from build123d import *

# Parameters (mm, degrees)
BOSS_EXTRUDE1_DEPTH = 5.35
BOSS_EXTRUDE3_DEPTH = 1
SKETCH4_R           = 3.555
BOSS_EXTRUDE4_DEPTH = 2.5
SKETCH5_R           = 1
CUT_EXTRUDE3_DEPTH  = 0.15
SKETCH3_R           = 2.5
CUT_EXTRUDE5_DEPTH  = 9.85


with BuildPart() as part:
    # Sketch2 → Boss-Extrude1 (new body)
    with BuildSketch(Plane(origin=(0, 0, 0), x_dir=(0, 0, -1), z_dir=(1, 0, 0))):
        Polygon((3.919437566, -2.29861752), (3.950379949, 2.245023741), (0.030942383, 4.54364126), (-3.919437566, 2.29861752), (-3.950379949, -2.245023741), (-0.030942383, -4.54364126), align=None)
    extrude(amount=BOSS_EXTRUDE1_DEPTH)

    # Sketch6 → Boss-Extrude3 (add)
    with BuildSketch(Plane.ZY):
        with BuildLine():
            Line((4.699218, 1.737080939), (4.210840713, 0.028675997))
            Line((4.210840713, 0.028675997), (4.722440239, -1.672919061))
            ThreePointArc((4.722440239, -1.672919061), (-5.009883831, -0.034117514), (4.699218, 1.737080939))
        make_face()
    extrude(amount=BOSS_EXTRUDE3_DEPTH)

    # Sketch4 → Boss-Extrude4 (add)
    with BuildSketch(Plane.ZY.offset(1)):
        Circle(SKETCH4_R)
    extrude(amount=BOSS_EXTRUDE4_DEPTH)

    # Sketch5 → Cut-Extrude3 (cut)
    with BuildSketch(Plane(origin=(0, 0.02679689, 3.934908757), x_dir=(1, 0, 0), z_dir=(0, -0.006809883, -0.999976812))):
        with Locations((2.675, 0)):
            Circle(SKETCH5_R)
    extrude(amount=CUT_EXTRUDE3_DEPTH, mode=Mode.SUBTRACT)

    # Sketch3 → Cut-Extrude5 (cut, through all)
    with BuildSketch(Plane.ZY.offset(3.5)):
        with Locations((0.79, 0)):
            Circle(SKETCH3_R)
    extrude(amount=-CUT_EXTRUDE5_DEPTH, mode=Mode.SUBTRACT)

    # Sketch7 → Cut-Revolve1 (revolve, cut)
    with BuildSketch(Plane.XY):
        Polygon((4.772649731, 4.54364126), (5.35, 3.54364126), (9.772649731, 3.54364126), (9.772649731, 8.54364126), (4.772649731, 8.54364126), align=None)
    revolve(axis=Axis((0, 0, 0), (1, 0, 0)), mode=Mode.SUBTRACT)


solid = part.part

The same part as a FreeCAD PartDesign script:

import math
import FreeCAD as App
import Part
import Sketcher
Q = App.Units.Quantity

doc = App.newDocument("Part")
body = doc.addObject("PartDesign::Body", "Body")

# Sketch on YZ plane
sketch1 = doc.addObject("Sketcher::SketchObject", "Sketch")
body.addObject(sketch1)
sketch1.AttachmentSupport = (doc.YZ_Plane, [""])
sketch1.MapMode = "FlatFace"
sketch1.addGeometry([
    Part.LineSegment(App.Vector(-2.3, -3.9, 0), App.Vector(2.2, -4, 0)),  # 0
    Part.LineSegment(App.Vector(2.2, -4, 0), App.Vector(4.5, 0, 0)),  # 1
    Part.LineSegment(App.Vector(4.5, 0, 0), App.Vector(2.3, 3.9, 0)),  # 2
    Part.LineSegment(App.Vector(2.3, 3.9, 0), App.Vector(-2.2, 4, 0)),  # 3
    Part.LineSegment(App.Vector(-2.2, 4, 0), App.Vector(-4.5, 0, 0)),  # 4
    Part.LineSegment(App.Vector(-4.5, 0, 0), App.Vector(-2.3, -3.9, 0)),  # 5
], False)
sketch1.addConstraint([
    Sketcher.Constraint("Coincident", 0, 2, 1, 1),
    Sketcher.Constraint("Coincident", 1, 2, 2, 1),
    Sketcher.Constraint("Coincident", 2, 2, 3, 1),
    Sketcher.Constraint("Coincident", 3, 2, 4, 1),
    Sketcher.Constraint("Coincident", 4, 2, 5, 1),
    Sketcher.Constraint("Coincident", 5, 2, 0, 1),
    Sketcher.Constraint("Symmetric", 0, 2, 3, 2, -1, 1),
    Sketcher.Constraint("Symmetric", 1, 2, 4, 2, -1, 1),
    Sketcher.Constraint("Symmetric", 2, 2, 5, 2, -1, 1),
    Sketcher.Constraint("Equal", 0, 1),
    Sketcher.Constraint("Equal", 1, 2),
    Sketcher.Constraint("DistanceY", 0, 2, -1, 1, Q("3.95038 mm")),
    Sketcher.Constraint("DistanceX", -1, 1, 1, 2, Q("4.543641 mm")),
    Sketcher.Constraint("DistanceY", 1, 2, 2, 2, Q("3.95038 mm")),
    Sketcher.Constraint("DistanceX", 3, 2, 2, 2, Q("4.543641 mm")),
])
pad1 = doc.addObject("PartDesign::Pad", "Pad")
body.addObject(pad1)
pad1.Profile = sketch1
pad1.Length = 5.35

# Sketch on YZ plane
sketch2 = doc.addObject("Sketcher::SketchObject", "Sketch001")
body.addObject(sketch2)
sketch2.AttachmentSupport = (doc.YZ_Plane, [""])
sketch2.MapMode = "FlatFace"
sketch2.addGeometry([
    Part.LineSegment(App.Vector(0, 4.2, 0), App.Vector(1.7, 4.7, 0)),
    Part.ArcOfCircle(Part.Circle(App.Vector(0, 0, 0), App.Vector(0, 0, 1), 5), math.radians(110), math.radians(430)),
    Part.LineSegment(App.Vector(-1.7, 4.7, 0), App.Vector(0, 4.2, 0)),
], False)
sketch2.addConstraint([
    Sketcher.Constraint("Coincident", 0, 2, 1, 2),
    Sketcher.Constraint("Coincident", 1, 1, 2, 1),
    Sketcher.Constraint("Coincident", 2, 2, 0, 1),
    Sketcher.Constraint("Coincident", 1, 3, -1, 1),
    Sketcher.Constraint("Equal", 0, 2),
    Sketcher.Constraint("Radius", 1, Q("5.01 mm")),
    Sketcher.Constraint("DistanceX", 1, 1, 0, 2, Q("3.41 mm")),
    Sketcher.Constraint("DistanceY", 2, 2, 1, 1, Q("0.5116 mm")),
    Sketcher.Constraint("Distance", 0, Q("1.77684 mm")),
])
pad2 = doc.addObject("PartDesign::Pad", "Pad001")
body.addObject(pad2)
pad2.Profile = sketch2
pad2.Length = 1
pad2.Reversed = True

# Sketch on YZ plane
sketch3 = doc.addObject("Sketcher::SketchObject", "Sketch002")
body.addObject(sketch3)
sketch3.AttachmentSupport = (doc.YZ_Plane, [""])
sketch3.MapMode = "FlatFace"
sketch3.AttachmentOffset = App.Placement(App.Vector(0, 0, -1), App.Rotation())
sketch3.addGeometry(Part.Circle(App.Vector(0, 0, 0), App.Vector(0, 0, 1), 3.6), False)
sketch3.addConstraint([
    Sketcher.Constraint("Coincident", 0, 3, -1, 1),
    Sketcher.Constraint("Diameter", 0, Q("7.11 mm")),
])
pad3 = doc.addObject("PartDesign::Pad", "Pad002")
body.addObject(pad3)
pad3.Profile = sketch3
pad3.Length = 2.5
pad3.Reversed = True

# Sketch on an angled plane
sketch4 = doc.addObject("Sketcher::SketchObject", "Sketch003")
body.addObject(sketch4)
sketch4.Placement = App.Placement(App.Vector(0, 0.026797, 3.934909), App.Rotation(App.Vector(1, 0, 0), App.Vector(0, -0.999976812, 0.006809883), App.Vector(0, -0.006809883, -0.999976812), "ZXY"))
sketch4.addGeometry(Part.Circle(App.Vector(2.7, 0, 0), App.Vector(0, 0, 1), 1), False)
sketch4.addConstraint([
    Sketcher.Constraint("PointOnObject", 0, 3, -1),
    Sketcher.Constraint("Diameter", 0, Q("2 mm")),
    Sketcher.Constraint("DistanceX", -1, 1, 0, 3, Q("2.675 mm")),
])
pocket1 = doc.addObject("PartDesign::Pocket", "Pocket")
body.addObject(pocket1)
pocket1.Profile = sketch4
pocket1.Length = 0.15
pocket1.Reversed = True

# Sketch on YZ plane
sketch5 = doc.addObject("Sketcher::SketchObject", "Sketch004")
body.addObject(sketch5)
sketch5.AttachmentSupport = (doc.YZ_Plane, [""])
sketch5.MapMode = "FlatFace"
sketch5.AttachmentOffset = App.Placement(App.Vector(0, 0, -3.5), App.Rotation())
sketch5.addGeometry(Part.Circle(App.Vector(0, 0.8, 0), App.Vector(0, 0, 1), 2.5), False)
sketch5.addConstraint([
    Sketcher.Constraint("PointOnObject", 0, 3, -2),
    Sketcher.Constraint("Diameter", 0, Q("5 mm")),
    Sketcher.Constraint("DistanceY", -1, 1, 0, 3, Q("0.79 mm")),
])
pocket2 = doc.addObject("PartDesign::Pocket", "Pocket001")
body.addObject(pocket2)
pocket2.Profile = sketch5
pocket2.Type = "ThroughAll"
pocket2.Reversed = True

# Sketch on XY plane
sketch6 = doc.addObject("Sketcher::SketchObject", "Sketch005")
body.addObject(sketch6)
sketch6.AttachmentSupport = (doc.XY_Plane, [""])
sketch6.MapMode = "FlatFace"
sketch6.addGeometry([
    Part.LineSegment(App.Vector(4.8, 4.5, 0), App.Vector(5.3, 3.5, 0)),  # 0
    Part.LineSegment(App.Vector(5.3, 3.5, 0), App.Vector(9.8, 3.5, 0)),  # 1
    Part.LineSegment(App.Vector(9.8, 3.5, 0), App.Vector(9.8, 8.5, 0)),  # 2
    Part.LineSegment(App.Vector(9.8, 8.5, 0), App.Vector(4.8, 8.5, 0)),  # 3
    Part.LineSegment(App.Vector(4.8, 8.5, 0), App.Vector(4.8, 4.5, 0)),  # 4
], False)
sketch6.addConstraint([
    Sketcher.Constraint("Coincident", 0, 2, 1, 1),
    Sketcher.Constraint("Coincident", 1, 2, 2, 1),
    Sketcher.Constraint("Coincident", 2, 2, 3, 1),
    Sketcher.Constraint("Coincident", 3, 2, 4, 1),
    Sketcher.Constraint("Coincident", 4, 2, 0, 1),
    Sketcher.Constraint("Horizontal", 1),
    Sketcher.Constraint("Vertical", 2),
    Sketcher.Constraint("Horizontal", 3),
    Sketcher.Constraint("Vertical", 4),
    Sketcher.Constraint("Equal", 3, 2),
    Sketcher.Constraint("DistanceX", 3, 2, 3, 1, Q("5 mm")),
    Sketcher.Constraint("DistanceY", 4, 2, 4, 1, Q("4 mm")),
    Sketcher.Constraint("Angle", 0, Q("-60 deg")),
    Sketcher.Constraint("DistanceX", -1, 1, 0, 2, Q("5.35 mm")),
    Sketcher.Constraint("DistanceY", -1, 1, 0, 2, Q("3.543641 mm")),
])
groove = doc.addObject("PartDesign::Groove", "Groove")
body.addObject(groove)
groove.Profile = sketch6
groove.ReferenceAxis = (sketch6, ["H_Axis"])
groove.Angle = 360

doc.recompute()
